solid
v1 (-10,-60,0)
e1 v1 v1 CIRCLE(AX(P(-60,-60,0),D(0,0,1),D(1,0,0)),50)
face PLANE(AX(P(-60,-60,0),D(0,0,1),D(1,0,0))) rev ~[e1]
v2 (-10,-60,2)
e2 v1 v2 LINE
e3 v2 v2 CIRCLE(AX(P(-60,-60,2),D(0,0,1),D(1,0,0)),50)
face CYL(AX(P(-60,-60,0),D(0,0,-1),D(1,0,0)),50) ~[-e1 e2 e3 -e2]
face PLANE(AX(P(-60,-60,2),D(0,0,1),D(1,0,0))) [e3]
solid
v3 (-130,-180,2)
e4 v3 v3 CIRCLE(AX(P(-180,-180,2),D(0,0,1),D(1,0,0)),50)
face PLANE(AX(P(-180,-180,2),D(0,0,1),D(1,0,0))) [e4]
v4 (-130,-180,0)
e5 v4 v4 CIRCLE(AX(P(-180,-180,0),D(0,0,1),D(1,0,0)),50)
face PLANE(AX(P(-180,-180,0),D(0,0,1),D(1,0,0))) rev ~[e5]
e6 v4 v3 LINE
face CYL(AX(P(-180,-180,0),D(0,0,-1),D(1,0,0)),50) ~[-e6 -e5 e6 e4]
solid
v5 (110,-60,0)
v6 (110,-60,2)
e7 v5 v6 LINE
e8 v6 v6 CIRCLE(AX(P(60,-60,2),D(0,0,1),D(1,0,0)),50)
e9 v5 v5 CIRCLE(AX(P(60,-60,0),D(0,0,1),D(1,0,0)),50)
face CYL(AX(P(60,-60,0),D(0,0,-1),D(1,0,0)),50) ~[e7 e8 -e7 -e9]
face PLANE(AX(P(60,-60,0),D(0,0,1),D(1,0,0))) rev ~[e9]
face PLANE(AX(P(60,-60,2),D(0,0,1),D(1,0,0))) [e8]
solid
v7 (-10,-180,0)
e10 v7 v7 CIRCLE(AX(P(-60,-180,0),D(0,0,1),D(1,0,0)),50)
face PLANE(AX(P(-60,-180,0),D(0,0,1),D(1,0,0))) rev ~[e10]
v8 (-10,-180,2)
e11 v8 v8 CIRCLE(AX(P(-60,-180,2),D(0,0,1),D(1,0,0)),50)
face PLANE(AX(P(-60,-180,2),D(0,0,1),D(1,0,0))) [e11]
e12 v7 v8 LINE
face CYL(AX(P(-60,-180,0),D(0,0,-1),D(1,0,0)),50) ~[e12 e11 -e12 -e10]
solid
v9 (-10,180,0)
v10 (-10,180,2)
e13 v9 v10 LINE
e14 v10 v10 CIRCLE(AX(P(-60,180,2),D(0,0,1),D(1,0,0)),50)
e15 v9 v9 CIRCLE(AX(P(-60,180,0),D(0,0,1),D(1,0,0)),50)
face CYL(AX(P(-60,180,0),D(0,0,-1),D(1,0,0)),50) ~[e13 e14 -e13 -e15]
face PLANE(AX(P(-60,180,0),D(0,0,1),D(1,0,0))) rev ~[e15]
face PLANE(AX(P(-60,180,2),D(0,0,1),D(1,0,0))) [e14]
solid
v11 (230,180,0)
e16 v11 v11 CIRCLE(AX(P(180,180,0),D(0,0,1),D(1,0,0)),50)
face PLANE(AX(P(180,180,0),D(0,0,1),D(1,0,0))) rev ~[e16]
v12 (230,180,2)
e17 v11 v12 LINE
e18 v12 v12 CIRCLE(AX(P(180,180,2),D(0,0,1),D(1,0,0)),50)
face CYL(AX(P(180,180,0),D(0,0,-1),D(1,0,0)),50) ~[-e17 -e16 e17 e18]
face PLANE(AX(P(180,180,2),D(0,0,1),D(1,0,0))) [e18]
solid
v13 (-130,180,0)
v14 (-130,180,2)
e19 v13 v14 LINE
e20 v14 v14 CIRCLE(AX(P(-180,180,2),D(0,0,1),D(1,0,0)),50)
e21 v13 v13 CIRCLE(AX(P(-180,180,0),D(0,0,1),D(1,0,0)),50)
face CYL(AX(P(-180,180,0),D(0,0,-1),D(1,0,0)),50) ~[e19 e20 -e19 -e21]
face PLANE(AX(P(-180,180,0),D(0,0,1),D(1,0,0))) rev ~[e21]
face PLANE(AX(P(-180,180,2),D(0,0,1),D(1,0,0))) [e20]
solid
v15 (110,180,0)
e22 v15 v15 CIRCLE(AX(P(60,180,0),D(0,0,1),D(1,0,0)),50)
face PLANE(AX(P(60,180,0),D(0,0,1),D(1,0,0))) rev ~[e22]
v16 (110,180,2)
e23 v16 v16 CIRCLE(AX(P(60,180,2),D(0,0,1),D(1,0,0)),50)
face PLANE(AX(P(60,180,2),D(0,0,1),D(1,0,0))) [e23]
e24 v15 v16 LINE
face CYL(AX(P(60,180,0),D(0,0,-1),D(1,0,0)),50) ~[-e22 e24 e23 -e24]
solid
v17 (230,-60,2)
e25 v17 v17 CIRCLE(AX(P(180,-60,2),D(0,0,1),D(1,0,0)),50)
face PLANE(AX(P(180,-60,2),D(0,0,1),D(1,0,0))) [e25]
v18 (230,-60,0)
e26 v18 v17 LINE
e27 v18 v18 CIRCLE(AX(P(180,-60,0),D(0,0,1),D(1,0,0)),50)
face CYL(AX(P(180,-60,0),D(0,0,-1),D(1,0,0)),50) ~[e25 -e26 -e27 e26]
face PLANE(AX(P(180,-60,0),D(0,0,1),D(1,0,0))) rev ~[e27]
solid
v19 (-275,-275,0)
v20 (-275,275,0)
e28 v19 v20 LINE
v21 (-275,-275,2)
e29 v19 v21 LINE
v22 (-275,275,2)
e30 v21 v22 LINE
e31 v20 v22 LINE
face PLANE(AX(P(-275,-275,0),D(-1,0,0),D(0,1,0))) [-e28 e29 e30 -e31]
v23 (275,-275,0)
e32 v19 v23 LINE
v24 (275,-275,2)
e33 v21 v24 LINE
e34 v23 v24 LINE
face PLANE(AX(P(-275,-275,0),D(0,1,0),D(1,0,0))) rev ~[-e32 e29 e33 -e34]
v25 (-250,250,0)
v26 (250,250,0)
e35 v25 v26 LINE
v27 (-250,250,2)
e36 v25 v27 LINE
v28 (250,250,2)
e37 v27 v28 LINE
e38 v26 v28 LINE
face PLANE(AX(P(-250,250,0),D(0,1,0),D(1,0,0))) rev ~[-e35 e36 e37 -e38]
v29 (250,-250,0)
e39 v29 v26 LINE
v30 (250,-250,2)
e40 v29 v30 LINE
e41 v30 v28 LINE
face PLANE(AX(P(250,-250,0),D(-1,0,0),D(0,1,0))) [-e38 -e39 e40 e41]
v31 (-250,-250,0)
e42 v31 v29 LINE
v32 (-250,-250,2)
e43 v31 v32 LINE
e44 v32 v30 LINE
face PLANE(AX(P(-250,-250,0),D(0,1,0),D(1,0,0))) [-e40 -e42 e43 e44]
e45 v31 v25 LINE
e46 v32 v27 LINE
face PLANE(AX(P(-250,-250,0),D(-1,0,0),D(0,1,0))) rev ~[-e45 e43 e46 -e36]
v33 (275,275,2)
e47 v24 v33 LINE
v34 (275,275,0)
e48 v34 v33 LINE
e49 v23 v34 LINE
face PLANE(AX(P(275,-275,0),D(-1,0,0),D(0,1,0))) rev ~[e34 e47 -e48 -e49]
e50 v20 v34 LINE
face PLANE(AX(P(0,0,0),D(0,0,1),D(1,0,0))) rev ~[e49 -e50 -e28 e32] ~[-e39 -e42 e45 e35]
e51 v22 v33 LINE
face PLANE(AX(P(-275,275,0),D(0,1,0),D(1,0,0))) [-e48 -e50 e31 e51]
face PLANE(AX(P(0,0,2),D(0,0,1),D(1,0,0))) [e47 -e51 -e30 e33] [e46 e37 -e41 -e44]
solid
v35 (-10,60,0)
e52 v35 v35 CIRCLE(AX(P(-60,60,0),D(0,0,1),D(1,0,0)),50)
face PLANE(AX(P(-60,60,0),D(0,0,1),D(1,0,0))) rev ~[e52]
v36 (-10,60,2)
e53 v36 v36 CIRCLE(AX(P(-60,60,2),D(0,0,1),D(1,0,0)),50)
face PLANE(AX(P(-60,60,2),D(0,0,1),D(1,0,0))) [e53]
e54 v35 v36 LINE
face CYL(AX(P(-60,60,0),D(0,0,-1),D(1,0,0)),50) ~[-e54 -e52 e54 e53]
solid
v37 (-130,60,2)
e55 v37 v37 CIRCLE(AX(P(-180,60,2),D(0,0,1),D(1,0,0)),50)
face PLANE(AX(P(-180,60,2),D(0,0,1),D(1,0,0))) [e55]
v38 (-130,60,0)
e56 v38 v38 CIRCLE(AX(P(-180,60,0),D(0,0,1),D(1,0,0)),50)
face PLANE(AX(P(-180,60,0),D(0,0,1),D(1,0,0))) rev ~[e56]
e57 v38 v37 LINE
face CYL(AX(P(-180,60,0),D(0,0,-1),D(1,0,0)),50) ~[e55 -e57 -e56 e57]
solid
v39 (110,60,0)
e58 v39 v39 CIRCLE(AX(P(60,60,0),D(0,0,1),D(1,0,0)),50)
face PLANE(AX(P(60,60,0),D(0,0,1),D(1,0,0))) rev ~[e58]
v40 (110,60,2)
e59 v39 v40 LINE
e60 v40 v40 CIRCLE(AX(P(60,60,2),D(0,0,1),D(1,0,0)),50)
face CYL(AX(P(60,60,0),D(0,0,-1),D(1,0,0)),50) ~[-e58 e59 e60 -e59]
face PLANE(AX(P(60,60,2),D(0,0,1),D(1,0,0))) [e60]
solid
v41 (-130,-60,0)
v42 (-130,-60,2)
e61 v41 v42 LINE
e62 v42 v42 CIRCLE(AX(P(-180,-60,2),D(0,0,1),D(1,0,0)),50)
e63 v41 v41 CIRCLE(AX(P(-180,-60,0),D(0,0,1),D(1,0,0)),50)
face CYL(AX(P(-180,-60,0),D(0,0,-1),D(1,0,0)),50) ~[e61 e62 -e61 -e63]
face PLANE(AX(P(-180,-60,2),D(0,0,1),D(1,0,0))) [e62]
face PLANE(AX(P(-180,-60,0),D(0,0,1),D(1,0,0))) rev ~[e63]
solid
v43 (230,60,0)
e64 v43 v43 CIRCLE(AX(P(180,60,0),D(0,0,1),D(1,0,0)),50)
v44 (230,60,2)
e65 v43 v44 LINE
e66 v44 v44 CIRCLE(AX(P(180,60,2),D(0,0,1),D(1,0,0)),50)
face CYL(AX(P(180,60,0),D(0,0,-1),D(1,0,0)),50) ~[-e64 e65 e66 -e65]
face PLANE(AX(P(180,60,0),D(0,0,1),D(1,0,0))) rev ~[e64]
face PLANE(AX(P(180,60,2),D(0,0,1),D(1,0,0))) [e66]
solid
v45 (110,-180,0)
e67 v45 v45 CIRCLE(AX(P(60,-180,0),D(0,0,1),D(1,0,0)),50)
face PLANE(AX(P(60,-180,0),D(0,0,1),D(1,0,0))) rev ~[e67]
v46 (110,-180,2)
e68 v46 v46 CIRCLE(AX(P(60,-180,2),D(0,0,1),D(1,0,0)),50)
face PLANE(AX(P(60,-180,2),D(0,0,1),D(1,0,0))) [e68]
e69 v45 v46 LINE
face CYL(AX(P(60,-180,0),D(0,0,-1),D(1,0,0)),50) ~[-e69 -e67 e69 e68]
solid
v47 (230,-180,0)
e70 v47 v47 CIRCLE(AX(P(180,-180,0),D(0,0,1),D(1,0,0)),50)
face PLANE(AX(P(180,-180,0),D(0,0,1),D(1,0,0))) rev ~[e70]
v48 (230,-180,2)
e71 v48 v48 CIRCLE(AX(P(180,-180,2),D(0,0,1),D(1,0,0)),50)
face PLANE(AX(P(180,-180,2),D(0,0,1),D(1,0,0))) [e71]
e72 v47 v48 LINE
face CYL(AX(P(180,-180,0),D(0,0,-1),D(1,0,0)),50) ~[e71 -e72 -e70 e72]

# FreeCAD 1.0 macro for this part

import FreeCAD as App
import Part
import Sketcher

V = App.Vector
Q = App.Units.Quantity


def add_polygon(sketch, points):
    """Adds a closed chain of lines whose ends are joined by coincident constraints."""
    first, n = sketch.GeometryCount, len(points)
    for a, b in zip(points, points[1:] + points[:1]):
        sketch.addGeometry(Part.LineSegment(App.Vector(*a, 0), App.Vector(*b, 0)), False)
    for i in range(n):
        sketch.addConstraint(Sketcher.Constraint("Coincident", first + i, 2, first + (i + 1) % n, 1))

doc = App.newDocument("Part")
params = doc.addObject("Spreadsheet::Sheet", "Params")
for row, (alias, value) in enumerate([
    ("sketch1_diameter", "100 mm"),
    ("sketch1_width", "550 mm"),
    ("sketch1_width2", "500 mm"),
    ("pad1_length", "2 mm"),
], start=1):
    params.set(f"A{row}", alias)
    params.set(f"B{row}", "=" + value)
    params.setAlias(f"B{row}", alias)

body = doc.addObject("PartDesign::Body", "Body")
body.AllowCompound = True

# Sketch on XY plane
sketch1 = body.newObject("Sketcher::SketchObject", "Sketch")
sketch1.AttachmentSupport = (doc.getObject("XY_Plane"), [""])
sketch1.MapMode = "FlatFace"
add_polygon(sketch1, [(-275, 275), (-275, -275), (275, -275), (275, 275)])  # lines 0-3
add_polygon(sketch1, [(250, -250), (-250, -250), (-250, 250), (250, 250)])  # lines 4-7
sketch1.addGeometry(Part.Circle(V(-180, 180, 0), V(0, 0, 1), 50), False)  # 8
sketch1.addGeometry(Part.Circle(V(-60, 180, 0), V(0, 0, 1), 50), False)  # 9
sketch1.addGeometry(Part.Circle(V(60, 180, 0), V(0, 0, 1), 50), False)  # 10
sketch1.addGeometry(Part.Circle(V(180, 180, 0), V(0, 0, 1), 50), False)  # 11
sketch1.addGeometry(Part.Circle(V(180, 60, 0), V(0, 0, 1), 50), False)  # 12
sketch1.addGeometry(Part.Circle(V(60, 60, 0), V(0, 0, 1), 50), False)  # 13
sketch1.addGeometry(Part.Circle(V(-60, 60, 0), V(0, 0, 1), 50), False)  # 14
sketch1.addGeometry(Part.Circle(V(-180, 60, 0), V(0, 0, 1), 50), False)  # 15
sketch1.addGeometry(Part.Circle(V(-180, -60, 0), V(0, 0, 1), 50), False)  # 16
sketch1.addGeometry(Part.Circle(V(-60, -60, 0), V(0, 0, 1), 50), False)  # 17
sketch1.addGeometry(Part.Circle(V(60, -60, 0), V(0, 0, 1), 50), False)  # 18
sketch1.addGeometry(Part.Circle(V(180, -60, 0), V(0, 0, 1), 50), False)  # 19
sketch1.addGeometry(Part.Circle(V(180, -180, 0), V(0, 0, 1), 50), False)  # 20
sketch1.addGeometry(Part.Circle(V(60, -180, 0), V(0, 0, 1), 50), False)  # 21
sketch1.addGeometry(Part.Circle(V(-60, -180, 0), V(0, 0, 1), 50), False)  # 22
sketch1.addGeometry(Part.Circle(V(-180, -180, 0), V(0, 0, 1), 50), False)  # 23
sketch1.addConstraint([
    Sketcher.Constraint("Vertical", 0),
    Sketcher.Constraint("Horizontal", 1),
    Sketcher.Constraint("Vertical", 2),
    Sketcher.Constraint("Horizontal", 3),
    Sketcher.Constraint("Horizontal", 4),
    Sketcher.Constraint("Vertical", 5),
    Sketcher.Constraint("Horizontal", 6),
    Sketcher.Constraint("Vertical", 7),
    Sketcher.Constraint("Equal", 8, 9),
    Sketcher.Constraint("Equal", 9, 10),
    Sketcher.Constraint("Equal", 10, 11),
    Sketcher.Constraint("Equal", 11, 12),
    Sketcher.Constraint("Equal", 12, 13),
    Sketcher.Constraint("Equal", 13, 14),
    Sketcher.Constraint("Equal", 14, 15),
    Sketcher.Constraint("Equal", 15, 16),
    Sketcher.Constraint("Equal", 16, 17),
    Sketcher.Constraint("Equal", 17, 18),
    Sketcher.Constraint("Equal", 18, 19),
    Sketcher.Constraint("Equal", 19, 20),
    Sketcher.Constraint("Equal", 20, 21),
    Sketcher.Constraint("Equal", 21, 22),
    Sketcher.Constraint("Equal", 22, 23),
    Sketcher.Constraint("Symmetric", 12, 3, 16, 3, -1, 1),
    Sketcher.Constraint("Symmetric", 13, 3, 17, 3, -1, 1),
    Sketcher.Constraint("Symmetric", 14, 3, 18, 3, -1, 1),
    Sketcher.Constraint("Symmetric", 15, 3, 19, 3, -1, 1),
    Sketcher.Constraint("Symmetric", 8, 3, 20, 3, -1, 1),
    Sketcher.Constraint("Symmetric", 9, 3, 21, 3, -1, 1),
    Sketcher.Constraint("Symmetric", 10, 3, 22, 3, -1, 1),
    Sketcher.Constraint("Symmetric", 11, 3, 23, 3, -1, 1),
    Sketcher.Constraint("Symmetric", 0, 2, 2, 2, -1, 1),
    Sketcher.Constraint("Symmetric", 4, 2, 6, 2, -1, 1),
    Sketcher.Constraint("Symmetric", 9, 3, 10, 3, -2),
    Sketcher.Constraint("Symmetric", 8, 3, 11, 3, -2),
    Sketcher.Constraint("Symmetric", 13, 3, 14, 3, -2),
    Sketcher.Constraint("Symmetric", 12, 3, 15, 3, -2),
    Sketcher.Constraint("Horizontal", 8, 3, 9, 3),
    Sketcher.Constraint("Horizontal", 12, 3, 13, 3),
    Sketcher.Constraint("Vertical", 11, 3, 12, 3),
    Sketcher.Constraint("Vertical", 10, 3, 13, 3),
    Sketcher.Constraint("Equal", 3, 0),
    Sketcher.Constraint("Equal", 6, 5),
    Sketcher.Constraint("Diameter", 8, Q("100 mm")),
    Sketcher.Constraint("DistanceX", 1, 1, 1, 2, Q("550 mm")),
    Sketcher.Constraint("DistanceX", 4, 2, 4, 1, Q("500 mm")),
    Sketcher.Constraint("DistanceX", 8, 3, -1, 1, Q("180 mm")),
    Sketcher.Constraint("DistanceY", -1, 1, 8, 3, Q("180 mm")),
    Sketcher.Constraint("DistanceX", 9, 3, -1, 1, Q("60 mm")),
    Sketcher.Constraint("DistanceY", -1, 1, 12, 3, Q("60 mm")),
])
sketch1.setExpression("Constraints[51]", "Params.sketch1_diameter")
sketch1.setExpression("Constraints[52]", "Params.sketch1_width")
sketch1.setExpression("Constraints[53]", "Params.sketch1_width2")
pad1 = body.newObject("PartDesign::Pad", "Pad")
pad1.Profile = sketch1
pad1.setExpression("Length", "Params.pad1_length")

doc.recompute()
